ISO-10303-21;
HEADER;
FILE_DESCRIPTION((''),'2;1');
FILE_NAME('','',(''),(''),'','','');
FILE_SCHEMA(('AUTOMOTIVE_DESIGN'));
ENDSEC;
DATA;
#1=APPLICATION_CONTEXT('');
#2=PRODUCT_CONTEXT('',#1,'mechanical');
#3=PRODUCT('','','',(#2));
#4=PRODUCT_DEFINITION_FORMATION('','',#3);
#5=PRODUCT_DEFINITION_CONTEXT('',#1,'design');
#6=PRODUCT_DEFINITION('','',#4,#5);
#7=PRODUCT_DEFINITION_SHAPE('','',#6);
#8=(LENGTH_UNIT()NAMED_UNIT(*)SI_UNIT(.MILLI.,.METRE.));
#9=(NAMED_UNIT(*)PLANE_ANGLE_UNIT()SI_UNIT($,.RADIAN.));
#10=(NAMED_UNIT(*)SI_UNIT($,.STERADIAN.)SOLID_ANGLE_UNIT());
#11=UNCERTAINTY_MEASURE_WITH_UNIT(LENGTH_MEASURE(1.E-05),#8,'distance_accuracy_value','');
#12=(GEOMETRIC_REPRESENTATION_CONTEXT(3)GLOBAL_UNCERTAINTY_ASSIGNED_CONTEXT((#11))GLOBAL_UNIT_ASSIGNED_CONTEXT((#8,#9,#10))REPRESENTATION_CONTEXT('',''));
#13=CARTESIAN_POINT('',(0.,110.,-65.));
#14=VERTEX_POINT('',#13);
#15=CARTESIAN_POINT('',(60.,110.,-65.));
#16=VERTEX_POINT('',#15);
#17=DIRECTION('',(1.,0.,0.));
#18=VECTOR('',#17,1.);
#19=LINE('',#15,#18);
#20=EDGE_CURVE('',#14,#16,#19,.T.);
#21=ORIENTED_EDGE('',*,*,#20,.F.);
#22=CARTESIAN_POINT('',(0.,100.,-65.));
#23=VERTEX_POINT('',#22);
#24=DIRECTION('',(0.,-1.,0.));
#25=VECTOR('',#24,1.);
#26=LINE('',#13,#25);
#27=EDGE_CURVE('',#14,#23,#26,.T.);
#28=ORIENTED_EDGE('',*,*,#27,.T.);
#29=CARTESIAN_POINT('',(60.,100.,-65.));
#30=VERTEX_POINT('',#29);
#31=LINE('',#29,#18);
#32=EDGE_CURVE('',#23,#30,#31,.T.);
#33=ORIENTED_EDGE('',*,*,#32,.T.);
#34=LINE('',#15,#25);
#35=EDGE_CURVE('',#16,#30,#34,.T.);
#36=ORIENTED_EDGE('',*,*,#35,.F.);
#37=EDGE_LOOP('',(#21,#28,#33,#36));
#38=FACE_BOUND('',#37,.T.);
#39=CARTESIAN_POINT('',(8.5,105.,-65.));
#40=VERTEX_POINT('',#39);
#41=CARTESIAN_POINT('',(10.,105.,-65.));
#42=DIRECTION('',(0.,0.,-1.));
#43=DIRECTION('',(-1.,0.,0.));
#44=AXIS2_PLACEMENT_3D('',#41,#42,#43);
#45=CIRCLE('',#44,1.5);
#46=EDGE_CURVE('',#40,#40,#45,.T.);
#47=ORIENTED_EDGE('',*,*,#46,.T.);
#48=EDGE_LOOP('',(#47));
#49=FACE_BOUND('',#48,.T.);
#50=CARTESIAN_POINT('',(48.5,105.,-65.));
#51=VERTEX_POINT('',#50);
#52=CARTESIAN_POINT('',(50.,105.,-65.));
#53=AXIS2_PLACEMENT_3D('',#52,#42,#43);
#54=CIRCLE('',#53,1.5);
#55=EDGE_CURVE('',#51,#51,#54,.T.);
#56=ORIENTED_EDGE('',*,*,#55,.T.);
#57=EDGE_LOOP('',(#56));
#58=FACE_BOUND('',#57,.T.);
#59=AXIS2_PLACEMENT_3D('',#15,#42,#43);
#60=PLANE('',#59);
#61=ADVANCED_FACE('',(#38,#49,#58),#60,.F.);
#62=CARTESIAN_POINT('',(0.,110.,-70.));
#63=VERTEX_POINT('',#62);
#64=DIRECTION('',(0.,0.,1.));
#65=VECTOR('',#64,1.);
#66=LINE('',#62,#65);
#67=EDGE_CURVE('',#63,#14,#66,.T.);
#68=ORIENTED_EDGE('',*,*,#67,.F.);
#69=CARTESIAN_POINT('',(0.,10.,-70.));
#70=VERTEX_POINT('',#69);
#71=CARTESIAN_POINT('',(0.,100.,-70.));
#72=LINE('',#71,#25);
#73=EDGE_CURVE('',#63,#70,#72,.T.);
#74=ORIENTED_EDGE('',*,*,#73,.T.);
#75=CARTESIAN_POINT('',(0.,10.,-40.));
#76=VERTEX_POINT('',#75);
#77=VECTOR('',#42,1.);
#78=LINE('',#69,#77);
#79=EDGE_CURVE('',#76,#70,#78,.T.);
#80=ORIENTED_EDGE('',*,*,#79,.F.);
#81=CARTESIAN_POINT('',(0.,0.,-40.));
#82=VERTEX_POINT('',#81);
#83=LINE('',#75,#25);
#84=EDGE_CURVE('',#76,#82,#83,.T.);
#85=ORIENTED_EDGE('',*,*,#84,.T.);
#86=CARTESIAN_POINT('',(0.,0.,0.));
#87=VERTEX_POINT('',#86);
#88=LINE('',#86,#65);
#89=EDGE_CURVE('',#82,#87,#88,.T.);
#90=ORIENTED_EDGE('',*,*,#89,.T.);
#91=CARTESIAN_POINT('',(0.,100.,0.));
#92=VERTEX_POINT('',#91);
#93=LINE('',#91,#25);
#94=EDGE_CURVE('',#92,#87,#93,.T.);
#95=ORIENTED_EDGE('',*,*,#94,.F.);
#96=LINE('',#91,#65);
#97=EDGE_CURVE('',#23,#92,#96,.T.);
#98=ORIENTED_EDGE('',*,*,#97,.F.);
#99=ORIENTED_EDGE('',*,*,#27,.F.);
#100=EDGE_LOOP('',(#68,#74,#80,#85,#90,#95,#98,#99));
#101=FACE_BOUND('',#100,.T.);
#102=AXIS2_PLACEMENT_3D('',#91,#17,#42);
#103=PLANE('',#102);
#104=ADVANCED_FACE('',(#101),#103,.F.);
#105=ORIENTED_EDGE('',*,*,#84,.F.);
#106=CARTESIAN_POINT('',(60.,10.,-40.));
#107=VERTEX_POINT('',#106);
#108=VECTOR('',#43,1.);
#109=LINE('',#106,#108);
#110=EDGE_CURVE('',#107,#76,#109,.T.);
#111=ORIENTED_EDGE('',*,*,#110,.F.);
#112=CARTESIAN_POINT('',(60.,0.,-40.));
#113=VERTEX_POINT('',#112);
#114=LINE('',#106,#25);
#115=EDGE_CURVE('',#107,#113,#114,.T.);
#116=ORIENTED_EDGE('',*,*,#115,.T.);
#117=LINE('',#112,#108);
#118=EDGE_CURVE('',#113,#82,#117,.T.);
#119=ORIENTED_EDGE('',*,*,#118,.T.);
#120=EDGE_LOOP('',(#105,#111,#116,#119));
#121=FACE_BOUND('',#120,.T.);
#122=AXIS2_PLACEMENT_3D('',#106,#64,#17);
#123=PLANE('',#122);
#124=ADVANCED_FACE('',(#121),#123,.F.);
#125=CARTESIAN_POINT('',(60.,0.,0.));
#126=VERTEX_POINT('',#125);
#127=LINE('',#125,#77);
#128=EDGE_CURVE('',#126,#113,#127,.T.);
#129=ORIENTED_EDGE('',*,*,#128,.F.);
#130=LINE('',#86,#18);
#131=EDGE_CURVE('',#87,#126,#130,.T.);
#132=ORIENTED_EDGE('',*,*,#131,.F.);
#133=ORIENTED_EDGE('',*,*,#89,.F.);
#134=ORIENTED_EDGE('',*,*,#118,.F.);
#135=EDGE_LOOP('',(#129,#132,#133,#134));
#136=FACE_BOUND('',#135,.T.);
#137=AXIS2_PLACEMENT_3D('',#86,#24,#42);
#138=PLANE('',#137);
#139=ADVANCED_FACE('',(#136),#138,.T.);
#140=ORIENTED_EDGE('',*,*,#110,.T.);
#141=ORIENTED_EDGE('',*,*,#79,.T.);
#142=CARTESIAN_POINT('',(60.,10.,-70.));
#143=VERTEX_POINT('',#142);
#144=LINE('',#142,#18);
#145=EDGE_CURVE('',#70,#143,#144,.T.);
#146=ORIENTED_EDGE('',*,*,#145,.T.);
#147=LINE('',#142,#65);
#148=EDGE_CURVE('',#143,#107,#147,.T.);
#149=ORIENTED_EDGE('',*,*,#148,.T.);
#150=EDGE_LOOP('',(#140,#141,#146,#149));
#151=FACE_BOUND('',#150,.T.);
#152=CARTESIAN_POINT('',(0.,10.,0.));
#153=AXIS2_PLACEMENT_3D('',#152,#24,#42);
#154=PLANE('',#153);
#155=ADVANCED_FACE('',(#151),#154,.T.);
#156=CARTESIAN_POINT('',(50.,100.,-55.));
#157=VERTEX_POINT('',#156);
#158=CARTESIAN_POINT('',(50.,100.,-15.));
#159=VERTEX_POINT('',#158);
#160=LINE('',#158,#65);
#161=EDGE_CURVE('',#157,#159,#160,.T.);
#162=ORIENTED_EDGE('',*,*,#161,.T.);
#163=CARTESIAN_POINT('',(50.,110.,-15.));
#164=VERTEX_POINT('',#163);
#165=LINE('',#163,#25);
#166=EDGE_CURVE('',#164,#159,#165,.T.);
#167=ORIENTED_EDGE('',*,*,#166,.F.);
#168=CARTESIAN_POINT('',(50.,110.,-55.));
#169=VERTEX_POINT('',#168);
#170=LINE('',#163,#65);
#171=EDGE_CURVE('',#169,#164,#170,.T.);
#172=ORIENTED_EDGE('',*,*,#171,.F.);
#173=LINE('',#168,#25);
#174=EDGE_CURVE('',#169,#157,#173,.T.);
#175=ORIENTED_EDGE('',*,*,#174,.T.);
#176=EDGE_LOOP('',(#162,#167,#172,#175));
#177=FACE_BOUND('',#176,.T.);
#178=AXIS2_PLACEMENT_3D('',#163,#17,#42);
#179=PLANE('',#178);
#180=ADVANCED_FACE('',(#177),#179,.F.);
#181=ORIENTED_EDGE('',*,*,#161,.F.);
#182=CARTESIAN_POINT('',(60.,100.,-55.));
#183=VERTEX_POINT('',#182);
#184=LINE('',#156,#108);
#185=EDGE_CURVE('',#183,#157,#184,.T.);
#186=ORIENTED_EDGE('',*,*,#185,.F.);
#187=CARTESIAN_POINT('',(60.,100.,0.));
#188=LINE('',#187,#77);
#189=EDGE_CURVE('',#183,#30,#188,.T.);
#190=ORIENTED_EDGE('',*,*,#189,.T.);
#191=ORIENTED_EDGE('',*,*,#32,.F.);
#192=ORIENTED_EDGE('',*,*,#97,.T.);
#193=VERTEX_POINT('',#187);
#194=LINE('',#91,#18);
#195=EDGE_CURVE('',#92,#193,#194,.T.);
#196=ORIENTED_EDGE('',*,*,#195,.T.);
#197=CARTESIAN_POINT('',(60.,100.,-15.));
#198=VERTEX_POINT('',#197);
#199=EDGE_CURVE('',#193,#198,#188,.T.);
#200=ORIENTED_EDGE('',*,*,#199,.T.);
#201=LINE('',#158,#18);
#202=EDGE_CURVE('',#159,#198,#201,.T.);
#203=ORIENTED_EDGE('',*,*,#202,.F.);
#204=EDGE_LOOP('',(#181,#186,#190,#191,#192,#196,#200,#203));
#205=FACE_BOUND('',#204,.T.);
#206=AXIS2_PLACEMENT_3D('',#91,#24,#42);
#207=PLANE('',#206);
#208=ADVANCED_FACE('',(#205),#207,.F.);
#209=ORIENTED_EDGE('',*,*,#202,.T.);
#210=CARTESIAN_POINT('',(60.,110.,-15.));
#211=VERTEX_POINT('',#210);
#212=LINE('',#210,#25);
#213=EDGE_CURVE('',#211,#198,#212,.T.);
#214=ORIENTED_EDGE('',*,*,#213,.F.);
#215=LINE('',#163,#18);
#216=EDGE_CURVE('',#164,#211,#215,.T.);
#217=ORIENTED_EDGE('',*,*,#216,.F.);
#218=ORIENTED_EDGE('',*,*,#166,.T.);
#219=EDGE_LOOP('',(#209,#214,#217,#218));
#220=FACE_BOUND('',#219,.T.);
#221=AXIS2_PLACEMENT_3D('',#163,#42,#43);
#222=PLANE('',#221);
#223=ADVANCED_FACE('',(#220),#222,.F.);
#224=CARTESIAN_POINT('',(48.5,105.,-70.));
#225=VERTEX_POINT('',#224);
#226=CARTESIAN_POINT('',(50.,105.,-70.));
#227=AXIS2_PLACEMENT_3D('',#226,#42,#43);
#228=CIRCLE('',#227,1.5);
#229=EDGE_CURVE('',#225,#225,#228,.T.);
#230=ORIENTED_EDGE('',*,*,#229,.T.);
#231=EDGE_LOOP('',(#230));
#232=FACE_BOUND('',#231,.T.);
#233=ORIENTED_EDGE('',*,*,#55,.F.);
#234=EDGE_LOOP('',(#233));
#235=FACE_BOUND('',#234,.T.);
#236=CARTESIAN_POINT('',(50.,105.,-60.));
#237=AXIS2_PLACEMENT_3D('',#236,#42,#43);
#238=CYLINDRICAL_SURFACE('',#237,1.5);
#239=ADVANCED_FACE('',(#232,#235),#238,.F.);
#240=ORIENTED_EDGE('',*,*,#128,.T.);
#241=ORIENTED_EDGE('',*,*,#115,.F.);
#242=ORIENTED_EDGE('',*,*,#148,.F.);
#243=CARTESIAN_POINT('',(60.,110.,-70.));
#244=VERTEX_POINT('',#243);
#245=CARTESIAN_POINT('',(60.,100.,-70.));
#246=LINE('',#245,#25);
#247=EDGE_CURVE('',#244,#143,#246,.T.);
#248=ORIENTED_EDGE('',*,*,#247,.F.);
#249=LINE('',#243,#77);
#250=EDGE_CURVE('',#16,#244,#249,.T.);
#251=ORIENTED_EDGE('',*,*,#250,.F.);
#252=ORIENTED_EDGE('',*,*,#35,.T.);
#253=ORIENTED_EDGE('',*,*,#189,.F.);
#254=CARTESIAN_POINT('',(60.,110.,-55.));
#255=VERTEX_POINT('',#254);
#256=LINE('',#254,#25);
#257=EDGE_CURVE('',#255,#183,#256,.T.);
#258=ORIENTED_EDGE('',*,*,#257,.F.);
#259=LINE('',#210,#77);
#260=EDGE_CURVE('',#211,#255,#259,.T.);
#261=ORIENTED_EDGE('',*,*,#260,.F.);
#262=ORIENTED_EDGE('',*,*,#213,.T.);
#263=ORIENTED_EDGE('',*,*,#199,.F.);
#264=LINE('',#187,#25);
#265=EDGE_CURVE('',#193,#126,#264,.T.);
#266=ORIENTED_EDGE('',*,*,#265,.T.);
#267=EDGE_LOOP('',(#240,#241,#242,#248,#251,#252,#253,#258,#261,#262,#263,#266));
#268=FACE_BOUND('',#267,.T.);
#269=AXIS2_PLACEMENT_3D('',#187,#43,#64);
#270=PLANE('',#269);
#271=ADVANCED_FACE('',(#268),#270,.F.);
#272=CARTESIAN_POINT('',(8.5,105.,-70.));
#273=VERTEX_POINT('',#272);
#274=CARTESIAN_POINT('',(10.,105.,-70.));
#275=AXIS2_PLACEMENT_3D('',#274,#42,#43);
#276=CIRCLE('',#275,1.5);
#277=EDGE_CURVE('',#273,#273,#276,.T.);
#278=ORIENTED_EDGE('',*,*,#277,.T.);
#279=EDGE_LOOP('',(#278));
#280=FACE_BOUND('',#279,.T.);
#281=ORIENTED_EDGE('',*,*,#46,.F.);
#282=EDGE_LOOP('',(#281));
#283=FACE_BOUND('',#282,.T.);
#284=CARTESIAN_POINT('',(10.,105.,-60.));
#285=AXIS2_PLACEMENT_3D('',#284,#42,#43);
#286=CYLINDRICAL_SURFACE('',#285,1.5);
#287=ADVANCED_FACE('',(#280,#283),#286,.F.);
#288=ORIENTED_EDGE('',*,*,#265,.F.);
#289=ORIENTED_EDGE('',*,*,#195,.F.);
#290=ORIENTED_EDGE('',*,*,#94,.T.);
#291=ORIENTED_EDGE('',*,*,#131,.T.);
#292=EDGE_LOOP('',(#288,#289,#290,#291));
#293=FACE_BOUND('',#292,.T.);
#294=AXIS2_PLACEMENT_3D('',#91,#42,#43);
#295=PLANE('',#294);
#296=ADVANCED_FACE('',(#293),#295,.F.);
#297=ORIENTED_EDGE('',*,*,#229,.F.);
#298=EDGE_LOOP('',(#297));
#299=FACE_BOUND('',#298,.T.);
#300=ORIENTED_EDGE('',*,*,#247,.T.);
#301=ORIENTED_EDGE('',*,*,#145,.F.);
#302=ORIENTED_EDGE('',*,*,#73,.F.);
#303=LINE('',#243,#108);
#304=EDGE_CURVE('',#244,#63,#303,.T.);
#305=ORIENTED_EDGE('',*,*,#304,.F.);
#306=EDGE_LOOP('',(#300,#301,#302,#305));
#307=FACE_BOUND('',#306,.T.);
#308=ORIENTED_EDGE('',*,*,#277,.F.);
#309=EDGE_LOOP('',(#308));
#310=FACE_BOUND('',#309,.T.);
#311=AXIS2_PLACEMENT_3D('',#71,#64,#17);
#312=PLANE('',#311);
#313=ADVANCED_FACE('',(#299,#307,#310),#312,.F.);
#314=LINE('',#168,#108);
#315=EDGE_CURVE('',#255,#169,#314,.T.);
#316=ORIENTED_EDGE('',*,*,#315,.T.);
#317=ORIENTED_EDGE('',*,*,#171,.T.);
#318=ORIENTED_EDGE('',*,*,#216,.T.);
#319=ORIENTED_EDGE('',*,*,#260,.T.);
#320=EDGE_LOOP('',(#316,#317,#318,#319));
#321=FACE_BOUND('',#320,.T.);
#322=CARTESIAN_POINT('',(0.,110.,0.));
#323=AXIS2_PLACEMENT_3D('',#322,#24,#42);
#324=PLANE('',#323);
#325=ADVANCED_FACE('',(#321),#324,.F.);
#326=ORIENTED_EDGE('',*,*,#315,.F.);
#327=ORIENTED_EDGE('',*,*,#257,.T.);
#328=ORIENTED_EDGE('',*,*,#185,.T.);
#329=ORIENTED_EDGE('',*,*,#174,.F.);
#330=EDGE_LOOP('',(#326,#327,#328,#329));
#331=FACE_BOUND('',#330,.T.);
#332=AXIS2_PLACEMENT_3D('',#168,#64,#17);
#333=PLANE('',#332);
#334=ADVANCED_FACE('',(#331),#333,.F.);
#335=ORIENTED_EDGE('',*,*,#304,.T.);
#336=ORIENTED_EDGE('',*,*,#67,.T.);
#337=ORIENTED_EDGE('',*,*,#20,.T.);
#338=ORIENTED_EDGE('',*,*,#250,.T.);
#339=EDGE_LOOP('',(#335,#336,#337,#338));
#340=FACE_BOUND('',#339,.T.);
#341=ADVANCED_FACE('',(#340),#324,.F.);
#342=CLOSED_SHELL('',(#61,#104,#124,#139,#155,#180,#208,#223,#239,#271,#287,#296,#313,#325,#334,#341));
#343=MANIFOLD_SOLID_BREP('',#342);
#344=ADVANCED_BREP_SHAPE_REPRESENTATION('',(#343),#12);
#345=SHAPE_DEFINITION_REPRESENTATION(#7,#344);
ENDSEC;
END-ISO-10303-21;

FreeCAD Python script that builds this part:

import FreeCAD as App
import Part
import Sketcher

V = App.Vector


def add_polygon(sketch, points):
    """Adds a closed chain of lines whose ends are joined by coincident constraints."""
    first, n = sketch.GeometryCount, len(points)
    for a, b in zip(points, points[1:] + points[:1]):
        sketch.addGeometry(Part.LineSegment(App.Vector(*a, 0), App.Vector(*b, 0)), False)
    for i in range(n):
        sketch.addConstraint(Sketcher.Constraint("Coincident", first + i, 2, first + (i + 1) % n, 1))

doc = App.newDocument("Part")
params = doc.addObject("Spreadsheet::Sheet", "Params")
for row, (alias, value) in enumerate([
    ("sketch1_width", "60 mm"),
    ("sketch1_height", "70 mm"),
    ("pad1_length", "100 mm"),
    ("sketch2_width", "10 mm"),
    ("sketch2_height", "40 mm"),
    ("pad2_length", "10 mm"),
    ("sketch3_width", "60 mm"),
    ("sketch3_height", "5 mm"),
    ("pad3_length", "10 mm"),
    ("sketch4_diameter", "3 mm"),
    ("pocket1_length", "10 mm"),
    ("sketch5_width", "60 mm"),
    ("sketch5_height", "30 mm"),
    ("pocket2_length", "10 mm"),
], start=1):
    params.set(f"A{row}", alias)
    params.set(f"B{row}", "=" + value)
    params.setAlias(f"B{row}", alias)

body = doc.addObject("PartDesign::Body", "Body")

# Sketch on XZ plane
sketch1 = body.newObject("Sketcher::SketchObject", "Sketch")
sketch1.AttachmentSupport = (doc.getObject("XZ_Plane"), [""])
sketch1.MapMode = "FlatFace"
add_polygon(sketch1, [(0, -70), (0, 0), (60, 0), (60, -70)])  # lines 0-3
sketch1.addConstraint([
    Sketcher.Constraint("Vertical", 0),
    Sketcher.Constraint("Horizontal", 1),
    Sketcher.Constraint("Vertical", 2),
    Sketcher.Constraint("Horizontal", 3),
    Sketcher.Constraint("Coincident", 0, 2, -1, 1),
    Sketcher.Constraint("DistanceX", 1, 1, 1, 2, 60.0),
    Sketcher.Constraint("DistanceY", 0, 1, 0, 2, 70.0),
])
sketch1.setExpression("Constraints[9]", "Params.sketch1_width")
sketch1.setExpression("Constraints[10]", "Params.sketch1_height")
pad1 = body.newObject("PartDesign::Pad", "Pad")
pad1.Profile = sketch1
pad1.setExpression("Length", "Params.pad1_length")
pad1.Reversed = True

# Sketch on XZ plane
sketch2 = body.newObject("Sketcher::SketchObject", "Sketch001")
sketch2.AttachmentSupport = (doc.getObject("XZ_Plane"), [""])
sketch2.MapMode = "FlatFace"
sketch2.AttachmentOffset = App.Placement(V(0, 0, -100), App.Rotation())
add_polygon(sketch2, [(50, -55), (50, -15), (60, -15), (60, -55)])  # lines 0-3
sketch2.addConstraint([
    Sketcher.Constraint("Vertical", 0),
    Sketcher.Constraint("Horizontal", 1),
    Sketcher.Constraint("Vertical", 2),
    Sketcher.Constraint("Horizontal", 3),
    Sketcher.Constraint("DistanceX", 1, 1, 1, 2, 10.0),
    Sketcher.Constraint("DistanceY", 0, 1, 0, 2, 40.0),
    Sketcher.Constraint("DistanceX", -1, 1, 0, 2, 50.0),
    Sketcher.Constraint("DistanceY", 0, 2, -1, 1, 15.0),
])
sketch2.setExpression("Constraints[8]", "Params.sketch2_width")
sketch2.setExpression("Constraints[9]", "Params.sketch2_height")
pad2 = body.newObject("PartDesign::Pad", "Pad001")
pad2.Profile = sketch2
pad2.setExpression("Length", "Params.pad2_length")
pad2.Reversed = True

# Sketch on XZ plane
sketch3 = body.newObject("Sketcher::SketchObject", "Sketch002")
sketch3.AttachmentSupport = (doc.getObject("XZ_Plane"), [""])
sketch3.MapMode = "FlatFace"
sketch3.AttachmentOffset = App.Placement(V(0, 0, -100), App.Rotation())
add_polygon(sketch3, [(0, -70), (0, -65), (60, -65), (60, -70)])  # lines 0-3
sketch3.addConstraint([
    Sketcher.Constraint("Vertical", 0),
    Sketcher.Constraint("Horizontal", 1),
    Sketcher.Constraint("Vertical", 2),
    Sketcher.Constraint("Horizontal", 3),
    Sketcher.Constraint("PointOnObject", 0, 2, -2),
    Sketcher.Constraint("DistanceX", 1, 1, 1, 2, 60.0),
    Sketcher.Constraint("DistanceY", 0, 1, 0, 2, 5.0),
    Sketcher.Constraint("DistanceY", 0, 2, -1, 1, 65.0),
])
sketch3.setExpression("Constraints[9]", "Params.sketch3_width")
sketch3.setExpression("Constraints[10]", "Params.sketch3_height")
pad3 = body.newObject("PartDesign::Pad", "Pad002")
pad3.Profile = sketch3
pad3.setExpression("Length", "Params.pad3_length")
pad3.Reversed = True

# Sketch on XY plane
sketch4 = body.newObject("Sketcher::SketchObject", "Sketch003")
sketch4.AttachmentSupport = (doc.getObject("XY_Plane"), [""])
sketch4.MapMode = "FlatFace"
sketch4.AttachmentOffset = App.Placement(V(0, 0, -70), App.Rotation())
sketch4.addGeometry([
    Part.Circle(V(50, 105, 0), V(0, 0, 1), 1.5),
    Part.Circle(V(10, 105, 0), V(0, 0, 1), 1.5),
], False)
sketch4.addConstraint([
    Sketcher.Constraint("Equal", 0, 1),
    Sketcher.Constraint("Horizontal", 0, 3, 1, 3),
    Sketcher.Constraint("Diameter", 0, 3.0),
    Sketcher.Constraint("DistanceX", -1, 1, 0, 3, 50.0),
    Sketcher.Constraint("DistanceY", -1, 1, 0, 3, 105.0),
    Sketcher.Constraint("DistanceX", -1, 1, 1, 3, 10.0),
])
sketch4.setExpression("Constraints[2]", "Params.sketch4_diameter")
pocket1 = body.newObject("PartDesign::Pocket", "Pocket")
pocket1.Profile = sketch4
pocket1.setExpression("Length", "Params.pocket1_length")
pocket1.Reversed = True

# Sketch on XZ plane
sketch5 = body.newObject("Sketcher::SketchObject", "Sketch004")
sketch5.AttachmentSupport = (doc.getObject("XZ_Plane"), [""])
sketch5.MapMode = "FlatFace"
add_polygon(sketch5, [(0, -40), (0, -70), (60, -70), (60, -40)])  # lines 0-3
sketch5.addConstraint([
    Sketcher.Constraint("Vertical", 0),
    Sketcher.Constraint("Horizontal", 1),
    Sketcher.Constraint("Vertical", 2),
    Sketcher.Constraint("Horizontal", 3),
    Sketcher.Constraint("PointOnObject", 0, 2, -2),
    Sketcher.Constraint("DistanceX", 1, 1, 1, 2, 60.0),
    Sketcher.Constraint("DistanceY", 0, 2, 0, 1, 30.0),
    Sketcher.Constraint("DistanceY", 0, 2, -1, 1, 70.0),
])
sketch5.setExpression("Constraints[9]", "Params.sketch5_width")
sketch5.setExpression("Constraints[10]", "Params.sketch5_height")
pocket2 = body.newObject("PartDesign::Pocket", "Pocket001")
pocket2.Profile = sketch5
pocket2.setExpression("Length", "Params.pocket2_length")

doc.recompute()
